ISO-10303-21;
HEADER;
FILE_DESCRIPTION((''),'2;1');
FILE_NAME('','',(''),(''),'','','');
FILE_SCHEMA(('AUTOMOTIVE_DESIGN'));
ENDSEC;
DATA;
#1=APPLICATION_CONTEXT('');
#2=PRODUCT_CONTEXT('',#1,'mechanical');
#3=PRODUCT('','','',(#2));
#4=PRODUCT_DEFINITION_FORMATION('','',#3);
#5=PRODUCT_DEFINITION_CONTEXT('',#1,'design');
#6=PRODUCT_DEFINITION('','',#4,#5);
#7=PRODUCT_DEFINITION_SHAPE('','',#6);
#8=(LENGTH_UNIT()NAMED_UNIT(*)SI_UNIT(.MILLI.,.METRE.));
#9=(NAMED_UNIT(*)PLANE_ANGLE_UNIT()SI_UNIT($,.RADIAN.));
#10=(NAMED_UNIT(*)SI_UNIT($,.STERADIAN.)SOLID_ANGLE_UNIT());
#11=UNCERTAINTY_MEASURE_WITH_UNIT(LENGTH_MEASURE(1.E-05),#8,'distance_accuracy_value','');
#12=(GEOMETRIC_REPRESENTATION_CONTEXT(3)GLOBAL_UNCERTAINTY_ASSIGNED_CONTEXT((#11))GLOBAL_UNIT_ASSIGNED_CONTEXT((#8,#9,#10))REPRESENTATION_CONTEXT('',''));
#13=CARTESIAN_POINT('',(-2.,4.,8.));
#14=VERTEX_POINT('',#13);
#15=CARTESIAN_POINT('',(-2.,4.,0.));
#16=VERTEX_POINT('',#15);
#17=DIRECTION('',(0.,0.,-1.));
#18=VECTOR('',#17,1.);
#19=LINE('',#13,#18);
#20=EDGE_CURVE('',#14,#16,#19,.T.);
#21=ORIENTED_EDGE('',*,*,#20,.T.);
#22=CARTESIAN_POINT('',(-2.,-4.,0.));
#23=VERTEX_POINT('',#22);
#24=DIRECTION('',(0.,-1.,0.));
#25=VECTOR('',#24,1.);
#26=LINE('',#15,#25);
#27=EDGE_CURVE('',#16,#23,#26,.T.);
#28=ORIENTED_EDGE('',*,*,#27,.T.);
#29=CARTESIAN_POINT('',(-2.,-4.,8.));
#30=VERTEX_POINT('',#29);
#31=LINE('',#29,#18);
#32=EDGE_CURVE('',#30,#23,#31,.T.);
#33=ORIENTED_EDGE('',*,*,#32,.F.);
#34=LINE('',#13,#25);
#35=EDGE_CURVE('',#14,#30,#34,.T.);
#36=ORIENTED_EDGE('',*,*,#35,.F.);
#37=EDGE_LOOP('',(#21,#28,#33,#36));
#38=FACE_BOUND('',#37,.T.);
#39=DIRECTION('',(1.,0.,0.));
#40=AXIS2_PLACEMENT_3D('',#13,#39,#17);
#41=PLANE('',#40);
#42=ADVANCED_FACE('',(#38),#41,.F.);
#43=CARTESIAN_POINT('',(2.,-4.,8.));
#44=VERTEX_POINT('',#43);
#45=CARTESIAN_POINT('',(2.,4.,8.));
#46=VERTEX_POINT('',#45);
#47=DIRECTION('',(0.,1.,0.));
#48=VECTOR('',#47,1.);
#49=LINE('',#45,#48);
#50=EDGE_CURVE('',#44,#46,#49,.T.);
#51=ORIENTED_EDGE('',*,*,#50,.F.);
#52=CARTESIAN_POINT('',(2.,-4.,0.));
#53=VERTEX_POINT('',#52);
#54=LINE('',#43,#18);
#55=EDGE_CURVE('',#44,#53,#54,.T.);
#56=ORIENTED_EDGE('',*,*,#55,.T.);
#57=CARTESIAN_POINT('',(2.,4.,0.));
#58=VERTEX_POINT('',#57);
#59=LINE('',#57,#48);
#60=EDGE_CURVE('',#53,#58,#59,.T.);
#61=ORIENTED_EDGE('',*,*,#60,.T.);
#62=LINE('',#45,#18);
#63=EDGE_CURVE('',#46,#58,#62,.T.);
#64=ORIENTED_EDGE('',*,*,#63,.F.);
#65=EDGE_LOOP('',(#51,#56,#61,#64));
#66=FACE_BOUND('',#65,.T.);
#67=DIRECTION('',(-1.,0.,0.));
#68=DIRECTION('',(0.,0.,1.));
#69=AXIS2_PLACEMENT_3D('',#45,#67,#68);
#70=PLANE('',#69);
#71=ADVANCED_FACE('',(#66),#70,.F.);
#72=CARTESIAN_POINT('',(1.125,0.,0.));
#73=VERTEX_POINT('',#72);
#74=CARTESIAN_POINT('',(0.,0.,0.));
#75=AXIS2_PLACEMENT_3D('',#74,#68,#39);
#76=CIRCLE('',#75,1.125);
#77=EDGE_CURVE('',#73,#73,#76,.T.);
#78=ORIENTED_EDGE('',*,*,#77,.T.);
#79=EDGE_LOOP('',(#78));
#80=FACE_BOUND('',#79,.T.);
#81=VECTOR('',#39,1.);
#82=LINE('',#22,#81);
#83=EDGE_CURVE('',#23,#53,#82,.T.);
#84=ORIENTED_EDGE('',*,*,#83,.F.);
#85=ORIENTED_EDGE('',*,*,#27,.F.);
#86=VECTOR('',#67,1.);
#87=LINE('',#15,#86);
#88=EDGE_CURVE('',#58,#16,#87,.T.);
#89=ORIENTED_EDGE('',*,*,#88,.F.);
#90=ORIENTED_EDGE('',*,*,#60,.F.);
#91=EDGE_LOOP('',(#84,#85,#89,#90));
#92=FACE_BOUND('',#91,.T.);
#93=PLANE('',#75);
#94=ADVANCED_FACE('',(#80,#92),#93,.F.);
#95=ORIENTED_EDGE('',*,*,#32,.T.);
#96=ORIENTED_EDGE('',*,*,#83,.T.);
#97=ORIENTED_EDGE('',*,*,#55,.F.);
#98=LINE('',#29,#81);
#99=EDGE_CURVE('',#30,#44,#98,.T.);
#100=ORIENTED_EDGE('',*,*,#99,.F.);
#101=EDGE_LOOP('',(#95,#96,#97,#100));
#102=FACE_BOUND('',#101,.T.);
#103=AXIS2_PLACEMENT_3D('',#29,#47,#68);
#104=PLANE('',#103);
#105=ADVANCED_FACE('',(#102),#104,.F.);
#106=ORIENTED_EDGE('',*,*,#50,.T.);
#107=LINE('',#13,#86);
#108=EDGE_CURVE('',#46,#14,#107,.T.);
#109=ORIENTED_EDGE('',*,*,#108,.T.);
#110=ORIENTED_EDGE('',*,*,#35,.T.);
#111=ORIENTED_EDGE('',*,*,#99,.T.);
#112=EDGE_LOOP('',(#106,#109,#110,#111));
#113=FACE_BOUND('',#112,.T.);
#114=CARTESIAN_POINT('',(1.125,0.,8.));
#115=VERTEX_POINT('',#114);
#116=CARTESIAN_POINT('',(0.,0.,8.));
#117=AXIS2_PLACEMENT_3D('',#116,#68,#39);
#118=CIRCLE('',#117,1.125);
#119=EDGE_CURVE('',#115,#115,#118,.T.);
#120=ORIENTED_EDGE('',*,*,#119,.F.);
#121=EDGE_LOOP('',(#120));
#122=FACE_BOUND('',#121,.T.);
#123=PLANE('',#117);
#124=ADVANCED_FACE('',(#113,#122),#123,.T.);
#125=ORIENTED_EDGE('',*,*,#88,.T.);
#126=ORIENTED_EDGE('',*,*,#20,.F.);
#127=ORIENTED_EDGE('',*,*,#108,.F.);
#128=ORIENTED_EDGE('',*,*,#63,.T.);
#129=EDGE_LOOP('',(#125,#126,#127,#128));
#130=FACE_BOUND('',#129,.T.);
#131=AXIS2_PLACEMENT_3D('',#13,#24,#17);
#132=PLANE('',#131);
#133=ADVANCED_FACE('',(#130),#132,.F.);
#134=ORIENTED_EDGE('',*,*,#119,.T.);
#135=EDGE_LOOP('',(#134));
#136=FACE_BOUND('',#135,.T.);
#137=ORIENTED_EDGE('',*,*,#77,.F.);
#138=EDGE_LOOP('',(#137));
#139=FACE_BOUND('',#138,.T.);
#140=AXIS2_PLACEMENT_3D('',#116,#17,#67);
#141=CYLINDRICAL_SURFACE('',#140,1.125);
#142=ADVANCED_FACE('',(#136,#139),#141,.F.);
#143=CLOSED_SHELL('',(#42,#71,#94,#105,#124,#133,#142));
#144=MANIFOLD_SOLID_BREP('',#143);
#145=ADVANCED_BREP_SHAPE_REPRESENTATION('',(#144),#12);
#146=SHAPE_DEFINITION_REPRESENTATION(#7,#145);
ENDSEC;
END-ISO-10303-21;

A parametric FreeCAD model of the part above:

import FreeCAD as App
import Part
import Sketcher

V = App.Vector


def add_polygon(sketch, points):
    """Adds a closed chain of lines whose ends are joined by coincident constraints."""
    first, n = sketch.GeometryCount, len(points)
    for a, b in zip(points, points[1:] + points[:1]):
        sketch.addGeometry(Part.LineSegment(App.Vector(*a, 0), App.Vector(*b, 0)), False)
    for i in range(n):
        sketch.addConstraint(Sketcher.Constraint("Coincident", first + i, 2, first + (i + 1) % n, 1))

doc = App.newDocument("Part")
params = doc.addObject("Spreadsheet::Sheet", "Params")
for row, (alias, value) in enumerate([
    ("sketch1_diameter", "2.25 mm"),
    ("sketch1_width", "4 mm"),
    ("sketch1_height", "8 mm"),
    ("pad1_length", "8 mm"),
], start=1):
    params.set(f"A{row}", alias)
    params.set(f"B{row}", "=" + value)
    params.setAlias(f"B{row}", alias)

body = doc.addObject("PartDesign::Body", "Body")

sketch1 = doc.addObject("Sketcher::SketchObject", "Sketch")
body.addObject(sketch1)
sketch1.AttachmentSupport = (doc.XY_Plane, [""])
sketch1.MapMode = "FlatFace"
add_polygon(sketch1, [(-2, 4), (-2, -4), (2, -4), (2, 4)])
sketch1.addGeometry(Part.Circle(V(0, 0, 0), V(0, 0, 1), 1.125), False)
sketch1.addConstraint(Sketcher.Constraint("Vertical", 0))
sketch1.addConstraint(Sketcher.Constraint("Horizontal", 1))
sketch1.addConstraint(Sketcher.Constraint("Vertical", 2))
sketch1.addConstraint(Sketcher.Constraint("Horizontal", 3))
sketch1.addConstraint(Sketcher.Constraint("Coincident", 4, 3, -1, 1))
sketch1.addConstraint(Sketcher.Constraint("Symmetric", 0, 2, 2, 2, -1, 1))
sketch1.addConstraint(Sketcher.Constraint("Diameter", 4, 2.25))
sketch1.addConstraint(Sketcher.Constraint("DistanceX", 1, 1, 1, 2, 4.0))
sketch1.addConstraint(Sketcher.Constraint("DistanceY", 0, 2, 0, 1, 8.0))
sketch1.setExpression("Constraints[10]", "Params.sketch1_diameter")
sketch1.setExpression("Constraints[11]", "Params.sketch1_width")
sketch1.setExpression("Constraints[12]", "Params.sketch1_height")
pad1 = doc.addObject("PartDesign::Pad", "Pad")
body.addObject(pad1)
pad1.Profile = sketch1
pad1.setExpression("Length", "Params.pad1_length")

doc.recompute()
